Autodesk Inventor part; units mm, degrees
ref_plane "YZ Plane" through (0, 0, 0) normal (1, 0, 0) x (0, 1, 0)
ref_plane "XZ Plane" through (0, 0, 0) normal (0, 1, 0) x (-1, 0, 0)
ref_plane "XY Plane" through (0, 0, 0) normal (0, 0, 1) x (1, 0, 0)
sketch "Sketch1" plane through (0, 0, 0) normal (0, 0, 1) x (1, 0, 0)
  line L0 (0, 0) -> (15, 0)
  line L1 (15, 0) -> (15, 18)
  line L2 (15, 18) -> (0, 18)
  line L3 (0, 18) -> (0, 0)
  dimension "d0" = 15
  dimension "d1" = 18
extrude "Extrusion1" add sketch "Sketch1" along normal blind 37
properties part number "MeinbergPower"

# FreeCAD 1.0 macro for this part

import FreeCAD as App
import Part
import Sketcher

V = App.Vector
Q = App.Units.Quantity


def add_polygon(sketch, points):
    """Adds a closed chain of lines whose ends are joined by coincident constraints."""
    first, n = sketch.GeometryCount, len(points)
    for a, b in zip(points, points[1:] + points[:1]):
        sketch.addGeometry(Part.LineSegment(App.Vector(*a, 0), App.Vector(*b, 0)), False)
    for i in range(n):
        sketch.addConstraint(Sketcher.Constraint("Coincident", first + i, 2, first + (i + 1) % n, 1))

doc = App.newDocument("Part")
body = doc.addObject("PartDesign::Body", "Body")

# Sketch on XY plane
sketch1 = doc.addObject("Sketcher::SketchObject", "Sketch")
body.addObject(sketch1)
sketch1.AttachmentSupport = (doc.XY_Plane, [""])
sketch1.MapMode = "FlatFace"
add_polygon(sketch1, [(0, 18), (0, 0), (15, 0), (15, 18)])  # lines 0-3
sketch1.addConstraint(Sketcher.Constraint("Vertical", 0))
sketch1.addConstraint(Sketcher.Constraint("Horizontal", 1))
sketch1.addConstraint(Sketcher.Constraint("Vertical", 2))
sketch1.addConstraint(Sketcher.Constraint("Horizontal", 3))
sketch1.addConstraint(Sketcher.Constraint("Coincident", 0, 2, -1, 1))
sketch1.addConstraint(Sketcher.Constraint("DistanceX", 1, 1, 1, 2, Q("15 mm")))
sketch1.addConstraint(Sketcher.Constraint("DistanceY", 0, 2, 0, 1, Q("18 mm")))
pad1 = doc.addObject("PartDesign::Pad", "Pad")
body.addObject(pad1)
pad1.Profile = sketch1
pad1.Length = 37

doc.recompute()
